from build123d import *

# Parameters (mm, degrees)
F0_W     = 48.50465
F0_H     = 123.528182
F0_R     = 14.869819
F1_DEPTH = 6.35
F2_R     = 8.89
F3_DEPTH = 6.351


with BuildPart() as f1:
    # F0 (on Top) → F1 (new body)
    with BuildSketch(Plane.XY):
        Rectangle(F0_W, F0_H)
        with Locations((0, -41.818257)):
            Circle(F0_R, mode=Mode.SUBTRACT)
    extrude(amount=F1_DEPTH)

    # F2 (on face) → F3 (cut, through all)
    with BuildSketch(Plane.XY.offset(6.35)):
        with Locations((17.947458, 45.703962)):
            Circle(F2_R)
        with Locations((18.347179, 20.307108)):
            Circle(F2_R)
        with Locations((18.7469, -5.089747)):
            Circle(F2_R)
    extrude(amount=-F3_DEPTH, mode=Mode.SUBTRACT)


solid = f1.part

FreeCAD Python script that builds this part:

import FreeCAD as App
import Part
import Sketcher
from FreeCAD import Vector
Q = App.Units.Quantity


def add_polygon(sketch, points):
    """Adds a closed chain of lines whose ends are joined by coincident constraints."""
    first, n = sketch.GeometryCount, len(points)
    for a, b in zip(points, points[1:] + points[:1]):
        sketch.addGeometry(Part.LineSegment(App.Vector(*a, 0), App.Vector(*b, 0)), False)
    for i in range(n):
        sketch.addConstraint(Sketcher.Constraint("Coincident", first + i, 2, first + (i + 1) % n, 1))

doc = App.newDocument("Part")
body = doc.addObject("PartDesign::Body", "Body")

# Sketch on XY plane
sketch1 = body.newObject("Sketcher::SketchObject", "Sketch")
sketch1.AttachmentSupport = (doc.getObject("XY_Plane"), [""])
sketch1.MapMode = "FlatFace"
add_polygon(sketch1, [(-24.252325, 61.764091), (-24.252325, -61.764091), (24.252325, -61.764091), (24.252325, 61.764091)])  # lines 0-3
sketch1.addGeometry(Part.Circle(Vector(0, -41.818257, 0), Vector(0, 0, 1), 14.869819), False)  # 4
sketch1.addConstraint([
    Sketcher.Constraint("Vertical", 0),
    Sketcher.Constraint("Horizontal", 1),
    Sketcher.Constraint("Vertical", 2),
    Sketcher.Constraint("Horizontal", 3),
    Sketcher.Constraint("Symmetric", 0, 2, 2, 2, -1, 1),
    Sketcher.Constraint("PointOnObject", 4, 3, -2),
    Sketcher.Constraint("Diameter", 4, 29.739638),
    Sketcher.Constraint("DistanceX", 1, 1, 1, 2, 48.50465),
    Sketcher.Constraint("DistanceY", 0, 2, 0, 1, 123.528182),
    Sketcher.Constraint("DistanceY", 4, 3, -1, 1, 41.818257),
])
pad1 = body.newObject("PartDesign::Pad", "Pad")
pad1.Profile = sketch1
pad1.Length = Q("0.25 in")

# Sketch on XY plane
sketch2 = body.newObject("Sketcher::SketchObject", "Sketch001")
sketch2.AttachmentSupport = (doc.getObject("XY_Plane"), [""])
sketch2.MapMode = "FlatFace"
sketch2.AttachmentOffset = App.Placement(Vector(0, 0, 0.25 * 25.4), App.Rotation())
sketch2.addGeometry([
    Part.Circle(Vector(17.947458, 45.703962, 0), Vector(0, 0, 1), 8.89),
    Part.Circle(Vector(18.347179, 20.307108, 0), Vector(0, 0, 1), 8.89),
    Part.Circle(Vector(18.7469, -5.089747, 0), Vector(0, 0, 1), 8.89),
], False)
sketch2.addConstraint([
    Sketcher.Constraint("Equal", 0, 1),
    Sketcher.Constraint("Equal", 1, 2),
    Sketcher.Constraint("Diameter", 0, Q("0.7 in")),
    Sketcher.Constraint("DistanceX", -1, 1, 2, 3, 18.7469),
    Sketcher.Constraint("DistanceX", -1, 1, 0, 3, 17.947458),
    Sketcher.Constraint("DistanceY", -1, 1, 0, 3, 45.703962),
    Sketcher.Constraint("DistanceX", -1, 1, 1, 3, 18.347179),
    Sketcher.Constraint("DistanceY", 2, 3, 0, 3, 50.793709),
    Sketcher.Constraint("DistanceY", -1, 1, 1, 3, 20.307108),
])
pocket1 = body.newObject("PartDesign::Pocket", "Pocket")
pocket1.Profile = sketch2
pocket1.Type = "ThroughAll"

doc.recompute()
